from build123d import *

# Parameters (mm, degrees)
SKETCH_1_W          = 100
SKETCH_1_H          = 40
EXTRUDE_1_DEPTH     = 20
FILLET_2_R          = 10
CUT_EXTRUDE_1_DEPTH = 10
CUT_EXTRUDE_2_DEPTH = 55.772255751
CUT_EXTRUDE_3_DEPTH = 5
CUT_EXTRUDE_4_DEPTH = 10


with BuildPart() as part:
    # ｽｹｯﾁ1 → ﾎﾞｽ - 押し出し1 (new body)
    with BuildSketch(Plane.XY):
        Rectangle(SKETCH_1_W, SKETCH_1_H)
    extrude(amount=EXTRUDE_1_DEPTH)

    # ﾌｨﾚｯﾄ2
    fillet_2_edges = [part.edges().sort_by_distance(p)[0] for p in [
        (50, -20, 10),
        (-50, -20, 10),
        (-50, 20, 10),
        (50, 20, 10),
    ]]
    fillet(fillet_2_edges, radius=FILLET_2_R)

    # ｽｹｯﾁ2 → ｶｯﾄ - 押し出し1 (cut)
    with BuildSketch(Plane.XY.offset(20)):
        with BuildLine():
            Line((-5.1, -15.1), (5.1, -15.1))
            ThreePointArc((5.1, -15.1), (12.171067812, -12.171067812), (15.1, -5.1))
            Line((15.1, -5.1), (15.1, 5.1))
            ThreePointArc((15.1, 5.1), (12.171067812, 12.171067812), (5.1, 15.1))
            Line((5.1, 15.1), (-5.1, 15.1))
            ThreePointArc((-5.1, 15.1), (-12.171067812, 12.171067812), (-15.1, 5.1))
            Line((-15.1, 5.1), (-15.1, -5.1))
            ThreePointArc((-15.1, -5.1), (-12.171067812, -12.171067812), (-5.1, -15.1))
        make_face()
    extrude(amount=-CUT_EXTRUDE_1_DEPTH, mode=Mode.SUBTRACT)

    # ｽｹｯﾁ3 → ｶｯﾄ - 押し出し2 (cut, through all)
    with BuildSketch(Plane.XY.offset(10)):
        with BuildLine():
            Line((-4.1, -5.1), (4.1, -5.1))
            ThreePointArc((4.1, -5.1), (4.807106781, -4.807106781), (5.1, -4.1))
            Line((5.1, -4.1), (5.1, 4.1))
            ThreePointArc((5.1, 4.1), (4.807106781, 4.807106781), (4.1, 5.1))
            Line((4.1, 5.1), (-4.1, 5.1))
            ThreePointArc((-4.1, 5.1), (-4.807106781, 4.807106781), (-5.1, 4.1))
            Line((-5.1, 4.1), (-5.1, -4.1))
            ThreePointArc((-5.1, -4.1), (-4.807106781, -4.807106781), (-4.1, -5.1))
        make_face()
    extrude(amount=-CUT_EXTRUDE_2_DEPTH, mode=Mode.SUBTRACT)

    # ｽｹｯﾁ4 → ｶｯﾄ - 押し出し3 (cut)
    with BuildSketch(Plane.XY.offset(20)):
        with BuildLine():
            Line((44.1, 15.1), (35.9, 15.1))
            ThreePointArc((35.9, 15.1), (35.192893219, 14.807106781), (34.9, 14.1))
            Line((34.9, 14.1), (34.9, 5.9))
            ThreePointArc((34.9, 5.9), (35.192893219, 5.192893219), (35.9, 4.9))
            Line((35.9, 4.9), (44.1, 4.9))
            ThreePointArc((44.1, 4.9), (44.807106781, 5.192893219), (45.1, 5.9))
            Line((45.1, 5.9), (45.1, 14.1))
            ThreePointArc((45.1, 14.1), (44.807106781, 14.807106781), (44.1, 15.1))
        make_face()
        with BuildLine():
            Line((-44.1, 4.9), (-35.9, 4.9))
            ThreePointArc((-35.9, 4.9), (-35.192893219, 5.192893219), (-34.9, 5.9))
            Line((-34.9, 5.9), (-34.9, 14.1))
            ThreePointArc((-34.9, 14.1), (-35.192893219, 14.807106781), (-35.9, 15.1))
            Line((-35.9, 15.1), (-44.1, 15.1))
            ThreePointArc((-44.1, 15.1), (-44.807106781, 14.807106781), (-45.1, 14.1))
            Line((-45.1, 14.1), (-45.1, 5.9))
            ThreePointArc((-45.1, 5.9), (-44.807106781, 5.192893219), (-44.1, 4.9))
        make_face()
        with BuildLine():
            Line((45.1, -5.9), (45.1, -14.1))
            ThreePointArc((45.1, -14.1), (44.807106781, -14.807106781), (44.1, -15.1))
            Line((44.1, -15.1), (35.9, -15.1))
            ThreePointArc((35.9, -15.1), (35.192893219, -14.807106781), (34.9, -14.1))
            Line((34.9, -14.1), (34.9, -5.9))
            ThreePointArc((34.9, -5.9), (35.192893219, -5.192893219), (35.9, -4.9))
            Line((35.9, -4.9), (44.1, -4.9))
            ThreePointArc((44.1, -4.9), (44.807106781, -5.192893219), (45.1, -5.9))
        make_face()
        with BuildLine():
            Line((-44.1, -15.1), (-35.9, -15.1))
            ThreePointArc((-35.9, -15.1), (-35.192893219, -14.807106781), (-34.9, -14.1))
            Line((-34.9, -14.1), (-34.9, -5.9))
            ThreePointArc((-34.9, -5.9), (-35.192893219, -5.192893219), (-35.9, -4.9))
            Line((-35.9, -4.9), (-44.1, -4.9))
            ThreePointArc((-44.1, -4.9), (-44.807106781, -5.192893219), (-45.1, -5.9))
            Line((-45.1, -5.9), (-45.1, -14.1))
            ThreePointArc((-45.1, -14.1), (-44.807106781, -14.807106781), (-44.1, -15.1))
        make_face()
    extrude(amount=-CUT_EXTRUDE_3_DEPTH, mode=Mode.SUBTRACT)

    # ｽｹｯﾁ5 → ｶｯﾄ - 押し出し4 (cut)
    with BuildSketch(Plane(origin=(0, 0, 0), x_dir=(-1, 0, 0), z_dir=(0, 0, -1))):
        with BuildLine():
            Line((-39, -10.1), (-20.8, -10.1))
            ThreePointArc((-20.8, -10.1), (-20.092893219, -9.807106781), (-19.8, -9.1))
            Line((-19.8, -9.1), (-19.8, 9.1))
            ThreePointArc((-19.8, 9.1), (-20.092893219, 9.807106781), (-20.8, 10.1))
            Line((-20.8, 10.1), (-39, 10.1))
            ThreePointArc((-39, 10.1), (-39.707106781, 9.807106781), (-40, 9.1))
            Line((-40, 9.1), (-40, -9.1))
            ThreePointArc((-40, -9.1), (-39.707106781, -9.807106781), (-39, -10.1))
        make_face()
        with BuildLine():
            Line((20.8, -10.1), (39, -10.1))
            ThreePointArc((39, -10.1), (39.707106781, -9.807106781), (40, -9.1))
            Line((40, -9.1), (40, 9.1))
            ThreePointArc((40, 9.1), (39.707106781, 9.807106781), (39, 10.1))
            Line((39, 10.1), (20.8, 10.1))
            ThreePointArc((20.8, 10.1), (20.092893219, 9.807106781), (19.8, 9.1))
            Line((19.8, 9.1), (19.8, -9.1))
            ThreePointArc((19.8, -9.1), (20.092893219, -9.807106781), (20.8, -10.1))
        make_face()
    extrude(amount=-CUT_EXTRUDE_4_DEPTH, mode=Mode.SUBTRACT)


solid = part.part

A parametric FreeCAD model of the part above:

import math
import FreeCAD as App
import Part
import Sketcher
Q = App.Units.Quantity


def edges_at(feature, points):
    """Names of the edges that pass closest to the given points."""
    edges = feature.Shape.Edges
    near = lambda p: min(range(len(edges)), key=lambda i: edges[i].distToShape(Part.Vertex(*p))[0])
    return sorted({f"Edge{near(p) + 1}" for p in points})


def add_polygon(sketch, points):
    """Adds a closed chain of lines whose ends are joined by coincident constraints."""
    first, n = sketch.GeometryCount, len(points)
    for a, b in zip(points, points[1:] + points[:1]):
        sketch.addGeometry(Part.LineSegment(App.Vector(*a, 0), App.Vector(*b, 0)), False)
    for i in range(n):
        sketch.addConstraint(Sketcher.Constraint("Coincident", first + i, 2, first + (i + 1) % n, 1))

doc = App.newDocument("Part")
body = doc.addObject("PartDesign::Body", "Body")

# Sketch on XY plane
sketch1 = body.newObject("Sketcher::SketchObject", "Sketch")
sketch1.AttachmentSupport = (doc.getObject("XY_Plane"), [""])
sketch1.MapMode = "FlatFace"
add_polygon(sketch1, [(-50, 20), (-50, -20), (50, -20), (50, 20)])  # lines 0-3
sketch1.addConstraint(Sketcher.Constraint("Vertical", 0))
sketch1.addConstraint(Sketcher.Constraint("Horizontal", 1))
sketch1.addConstraint(Sketcher.Constraint("Vertical", 2))
sketch1.addConstraint(Sketcher.Constraint("Horizontal", 3))
sketch1.addConstraint(Sketcher.Constraint("Symmetric", 0, 2, 2, 2, -1, 1))
sketch1.addConstraint(Sketcher.Constraint("DistanceX", 1, 1, 1, 2, Q("100 mm")))
sketch1.addConstraint(Sketcher.Constraint("DistanceY", 0, 2, 0, 1, Q("40 mm")))
pad1 = body.newObject("PartDesign::Pad", "Pad")
pad1.Profile = sketch1
pad1.Length = 20
doc.recompute()

fillet = body.newObject("PartDesign::Fillet", "Fillet")
fillet.Base = (pad1, edges_at(pad1, [
    (50, -20, 10),
    (-50, -20, 10),
    (-50, 20, 10),
    (50, 20, 10),
]))
fillet.Radius = 10

# Sketch on XY plane
sketch2 = body.newObject("Sketcher::SketchObject", "Sketch001")
sketch2.AttachmentSupport = (doc.getObject("XY_Plane"), [""])
sketch2.MapMode = "FlatFace"
sketch2.AttachmentOffset = App.Placement(App.Vector(0, 0, 20), App.Rotation())
sketch2.addGeometry(Part.LineSegment(App.Vector(-5, -15, 0), App.Vector(5, -15, 0)), False)
sketch2.addGeometry(Part.ArcOfCircle(Part.Circle(App.Vector(5, -5, 0), App.Vector(0, 0, 1), 10), math.radians(-90), math.radians(0)), False)
sketch2.addGeometry(Part.LineSegment(App.Vector(15, -5, 0), App.Vector(15, 5, 0)), False)
sketch2.addGeometry(Part.ArcOfCircle(Part.Circle(App.Vector(5, 5, 0), App.Vector(0, 0, 1), 10), math.radians(0), math.radians(90)), False)
sketch2.addGeometry(Part.LineSegment(App.Vector(5, 15, 0), App.Vector(-5, 15, 0)), False)
sketch2.addGeometry(Part.ArcOfCircle(Part.Circle(App.Vector(-5, 5, 0), App.Vector(0, 0, 1), 10), math.radians(90), math.radians(180)), False)
sketch2.addGeometry(Part.LineSegment(App.Vector(-15, 5, 0), App.Vector(-15, -5, 0)), False)
sketch2.addGeometry(Part.ArcOfCircle(Part.Circle(App.Vector(-5, -5, 0), App.Vector(0, 0, 1), 10), math.radians(180), math.radians(270)), False)
sketch2.addConstraint(Sketcher.Constraint("Tangent", 0, 2, 1, 1))
sketch2.addConstraint(Sketcher.Constraint("Tangent", 1, 2, 2, 1))
sketch2.addConstraint(Sketcher.Constraint("Tangent", 2, 2, 3, 1))
sketch2.addConstraint(Sketcher.Constraint("Tangent", 3, 2, 4, 1))
sketch2.addConstraint(Sketcher.Constraint("Tangent", 4, 2, 5, 1))
sketch2.addConstraint(Sketcher.Constraint("Tangent", 5, 2, 6, 1))
sketch2.addConstraint(Sketcher.Constraint("Tangent", 6, 2, 7, 1))
sketch2.addConstraint(Sketcher.Constraint("Tangent", 7, 2, 0, 1))
sketch2.addConstraint(Sketcher.Constraint("Horizontal", 0))
sketch2.addConstraint(Sketcher.Constraint("Vertical", 2))
sketch2.addConstraint(Sketcher.Constraint("Horizontal", 4))
sketch2.addConstraint(Sketcher.Constraint("Vertical", 6))
sketch2.addConstraint(Sketcher.Constraint("Equal", 1, 3))
sketch2.addConstraint(Sketcher.Constraint("Equal", 3, 5))
sketch2.addConstraint(Sketcher.Constraint("Equal", 5, 7))
sketch2.addConstraint(Sketcher.Constraint("Symmetric", 1, 3, 5, 3, -1, 1))
sketch2.addConstraint(Sketcher.Constraint("Equal", 4, 2))
sketch2.addConstraint(Sketcher.Constraint("Radius", 1, Q("10 mm")))
sketch2.addConstraint(Sketcher.Constraint("DistanceX", 0, 1, 0, 2, Q("10.2 mm")))
pocket1 = body.newObject("PartDesign::Pocket", "Pocket")
pocket1.Profile = sketch2
pocket1.Length = 10

# Sketch on XY plane
sketch3 = body.newObject("Sketcher::SketchObject", "Sketch002")
sketch3.AttachmentSupport = (doc.getObject("XY_Plane"), [""])
sketch3.MapMode = "FlatFace"
sketch3.AttachmentOffset = App.Placement(App.Vector(0, 0, 10), App.Rotation())
sketch3.addGeometry(Part.LineSegment(App.Vector(-4.1, -5.1, 0), App.Vector(4.1, -5.1, 0)), False)
sketch3.addGeometry(Part.ArcOfCircle(Part.Circle(App.Vector(4.1, -4.1, 0), App.Vector(0, 0, 1), 1), math.radians(-90), math.radians(0)), False)
sketch3.addGeometry(Part.LineSegment(App.Vector(5.1, -4.1, 0), App.Vector(5.1, 4.1, 0)), False)
sketch3.addGeometry(Part.ArcOfCircle(Part.Circle(App.Vector(4.1, 4.1, 0), App.Vector(0, 0, 1), 1), math.radians(0), math.radians(90)), False)
sketch3.addGeometry(Part.LineSegment(App.Vector(4.1, 5.1, 0), App.Vector(-4.1, 5.1, 0)), False)
sketch3.addGeometry(Part.ArcOfCircle(Part.Circle(App.Vector(-4.1, 4.1, 0), App.Vector(0, 0, 1), 1), math.radians(90), math.radians(180)), False)
sketch3.addGeometry(Part.LineSegment(App.Vector(-5.1, 4.1, 0), App.Vector(-5.1, -4.1, 0)), False)
sketch3.addGeometry(Part.ArcOfCircle(Part.Circle(App.Vector(-4.1, -4.1, 0), App.Vector(0, 0, 1), 1), math.radians(-180), math.radians(-90)), False)
sketch3.addConstraint(Sketcher.Constraint("Tangent", 0, 2, 1, 1))
sketch3.addConstraint(Sketcher.Constraint("Tangent", 1, 2, 2, 1))
sketch3.addConstraint(Sketcher.Constraint("Tangent", 2, 2, 3, 1))
sketch3.addConstraint(Sketcher.Constraint("Tangent", 3, 2, 4, 1))
sketch3.addConstraint(Sketcher.Constraint("Tangent", 4, 2, 5, 1))
sketch3.addConstraint(Sketcher.Constraint("Tangent", 5, 2, 6, 1))
sketch3.addConstraint(Sketcher.Constraint("Tangent", 6, 2, 7, 1))
sketch3.addConstraint(Sketcher.Constraint("Tangent", 7, 2, 0, 1))
sketch3.addConstraint(Sketcher.Constraint("Horizontal", 0))
sketch3.addConstraint(Sketcher.Constraint("Vertical", 2))
sketch3.addConstraint(Sketcher.Constraint("Horizontal", 4))
sketch3.addConstraint(Sketcher.Constraint("Vertical", 6))
sketch3.addConstraint(Sketcher.Constraint("Equal", 1, 3))
sketch3.addConstraint(Sketcher.Constraint("Equal", 3, 5))
sketch3.addConstraint(Sketcher.Constraint("Equal", 5, 7))
sketch3.addConstraint(Sketcher.Constraint("Symmetric", 1, 3, 5, 3, -1, 1))
sketch3.addConstraint(Sketcher.Constraint("Equal", 4, 2))
sketch3.addConstraint(Sketcher.Constraint("Radius", 1, Q("1 mm")))
sketch3.addConstraint(Sketcher.Constraint("DistanceX", 0, 1, 0, 2, Q("8.2 mm")))
pocket2 = body.newObject("PartDesign::Pocket", "Pocket001")
pocket2.Profile = sketch3
pocket2.Type = "ThroughAll"

# Sketch on XY plane
sketch4 = body.newObject("Sketcher::SketchObject", "Sketch003")
sketch4.AttachmentSupport = (doc.getObject("XY_Plane"), [""])
sketch4.MapMode = "FlatFace"
sketch4.AttachmentOffset = App.Placement(App.Vector(0, 0, 20), App.Rotation())
sketch4.addGeometry(Part.LineSegment(App.Vector(44.1, 15.1, 0), App.Vector(35.9, 15.1, 0)), False)
sketch4.addGeometry(Part.ArcOfCircle(Part.Circle(App.Vector(35.9, 14.1, 0), App.Vector(0, 0, 1), 1), math.radians(90), math.radians(180)), False)
sketch4.addGeometry(Part.LineSegment(App.Vector(34.9, 14.1, 0), App.Vector(34.9, 5.9, 0)), False)
sketch4.addGeometry(Part.ArcOfCircle(Part.Circle(App.Vector(35.9, 5.9, 0), App.Vector(0, 0, 1), 1), math.radians(-180), math.radians(-90)), False)
sketch4.addGeometry(Part.LineSegment(App.Vector(35.9, 4.9, 0), App.Vector(44.1, 4.9, 0)), False)
sketch4.addGeometry(Part.ArcOfCircle(Part.Circle(App.Vector(44.1, 5.9, 0), App.Vector(0, 0, 1), 1), math.radians(-90), math.radians(0)), False)
sketch4.addGeometry(Part.LineSegment(App.Vector(45.1, 5.9, 0), App.Vector(45.1, 14.1, 0)), False)
sketch4.addGeometry(Part.ArcOfCircle(Part.Circle(App.Vector(44.1, 14.1, 0), App.Vector(0, 0, 1), 1), math.radians(0), math.radians(90)), False)
sketch4.addGeometry(Part.LineSegment(App.Vector(-44.1, 4.9, 0), App.Vector(-35.9, 4.9, 0)), False)
sketch4.addGeometry(Part.ArcOfCircle(Part.Circle(App.Vector(-35.9, 5.9, 0), App.Vector(0, 0, 1), 1), math.radians(-90), math.radians(0)), False)
sketch4.addGeometry(Part.LineSegment(App.Vector(-34.9, 5.9, 0), App.Vector(-34.9, 14.1, 0)), False)
sketch4.addGeometry(Part.ArcOfCircle(Part.Circle(App.Vector(-35.9, 14.1, 0), App.Vector(0, 0, 1), 1), math.radians(0), math.radians(90)), False)
sketch4.addGeometry(Part.LineSegment(App.Vector(-35.9, 15.1, 0), App.Vector(-44.1, 15.1, 0)), False)
sketch4.addGeometry(Part.ArcOfCircle(Part.Circle(App.Vector(-44.1, 14.1, 0), App.Vector(0, 0, 1), 1), math.radians(90), math.radians(180)), False)
sketch4.addGeometry(Part.LineSegment(App.Vector(-45.1, 14.1, 0), App.Vector(-45.1, 5.9, 0)), False)
sketch4.addGeometry(Part.ArcOfCircle(Part.Circle(App.Vector(-44.1, 5.9, 0), App.Vector(0, 0, 1), 1), math.radians(-180), math.radians(-90)), False)
sketch4.addGeometry(Part.LineSegment(App.Vector(45.1, -14.1, 0), App.Vector(45.1, -5.9, 0)), False)
sketch4.addGeometry(Part.ArcOfCircle(Part.Circle(App.Vector(44.1, -5.9, 0), App.Vector(0, 0, 1), 1), math.radians(0), math.radians(90)), False)
sketch4.addGeometry(Part.LineSegment(App.Vector(44.1, -4.9, 0), App.Vector(35.9, -4.9, 0)), False)
sketch4.addGeometry(Part.ArcOfCircle(Part.Circle(App.Vector(35.9, -5.9, 0), App.Vector(0, 0, 1), 1), math.radians(90), math.radians(180)), False)
sketch4.addGeometry(Part.LineSegment(App.Vector(34.9, -5.9, 0), App.Vector(34.9, -14.1, 0)), False)
sketch4.addGeometry(Part.ArcOfCircle(Part.Circle(App.Vector(35.9, -14.1, 0), App.Vector(0, 0, 1), 1), math.radians(-180), math.radians(-90)), False)
sketch4.addGeometry(Part.LineSegment(App.Vector(35.9, -15.1, 0), App.Vector(44.1, -15.1, 0)), False)
sketch4.addGeometry(Part.ArcOfCircle(Part.Circle(App.Vector(44.1, -14.1, 0), App.Vector(0, 0, 1), 1), math.radians(-90), math.radians(0)), False)
sketch4.addGeometry(Part.LineSegment(App.Vector(-44.1, -15.1, 0), App.Vector(-35.9, -15.1, 0)), False)
sketch4.addGeometry(Part.ArcOfCircle(Part.Circle(App.Vector(-35.9, -14.1, 0), App.Vector(0, 0, 1), 1), math.radians(-90), math.radians(0)), False)
sketch4.addGeometry(Part.LineSegment(App.Vector(-34.9, -14.1, 0), App.Vector(-34.9, -5.9, 0)), False)
sketch4.addGeometry(Part.ArcOfCircle(Part.Circle(App.Vector(-35.9, -5.9, 0), App.Vector(0, 0, 1), 1), math.radians(0), math.radians(90)), False)
sketch4.addGeometry(Part.LineSegment(App.Vector(-35.9, -4.9, 0), App.Vector(-44.1, -4.9, 0)), False)
sketch4.addGeometry(Part.ArcOfCircle(Part.Circle(App.Vector(-44.1, -5.9, 0), App.Vector(0, 0, 1), 1), math.radians(90), math.radians(180)), False)
sketch4.addGeometry(Part.LineSegment(App.Vector(-45.1, -5.9, 0), App.Vector(-45.1, -14.1, 0)), False)
sketch4.addGeometry(Part.ArcOfCircle(Part.Circle(App.Vector(-44.1, -14.1, 0), App.Vector(0, 0, 1), 1), math.radians(-180), math.radians(-90)), False)
sketch4.addConstraint(Sketcher.Constraint("Tangent", 0, 2, 1, 1))
sketch4.addConstraint(Sketcher.Constraint("Tangent", 1, 2, 2, 1))
sketch4.addConstraint(Sketcher.Constraint("Tangent", 2, 2, 3, 1))
sketch4.addConstraint(Sketcher.Constraint("Tangent", 3, 2, 4, 1))
sketch4.addConstraint(Sketcher.Constraint("Tangent", 4, 2, 5, 1))
sketch4.addConstraint(Sketcher.Constraint("Tangent", 5, 2, 6, 1))
sketch4.addConstraint(Sketcher.Constraint("Tangent", 6, 2, 7, 1))
sketch4.addConstraint(Sketcher.Constraint("Tangent", 7, 2, 0, 1))
sketch4.addConstraint(Sketcher.Constraint("Tangent", 8, 2, 9, 1))
sketch4.addConstraint(Sketcher.Constraint("Tangent", 9, 2, 10, 1))
sketch4.addConstraint(Sketcher.Constraint("Tangent", 10, 2, 11, 1))
sketch4.addConstraint(Sketcher.Constraint("Tangent", 11, 2, 12, 1))
sketch4.addConstraint(Sketcher.Constraint("Tangent", 12, 2, 13, 1))
sketch4.addConstraint(Sketcher.Constraint("Tangent", 13, 2, 14, 1))
sketch4.addConstraint(Sketcher.Constraint("Tangent", 14, 2, 15, 1))
sketch4.addConstraint(Sketcher.Constraint("Tangent", 15, 2, 8, 1))
sketch4.addConstraint(Sketcher.Constraint("Tangent", 16, 2, 17, 1))
sketch4.addConstraint(Sketcher.Constraint("Tangent", 17, 2, 18, 1))
sketch4.addConstraint(Sketcher.Constraint("Tangent", 18, 2, 19, 1))
sketch4.addConstraint(Sketcher.Constraint("Tangent", 19, 2, 20, 1))
sketch4.addConstraint(Sketcher.Constraint("Tangent", 20, 2, 21, 1))
sketch4.addConstraint(Sketcher.Constraint("Tangent", 21, 2, 22, 1))
sketch4.addConstraint(Sketcher.Constraint("Tangent", 22, 2, 23, 1))
sketch4.addConstraint(Sketcher.Constraint("Tangent", 23, 2, 16, 1))
sketch4.addConstraint(Sketcher.Constraint("Tangent", 24, 2, 25, 1))
sketch4.addConstraint(Sketcher.Constraint("Tangent", 25, 2, 26, 1))
sketch4.addConstraint(Sketcher.Constraint("Tangent", 26, 2, 27, 1))
sketch4.addConstraint(Sketcher.Constraint("Tangent", 27, 2, 28, 1))
sketch4.addConstraint(Sketcher.Constraint("Tangent", 28, 2, 29, 1))
sketch4.addConstraint(Sketcher.Constraint("Tangent", 29, 2, 30, 1))
sketch4.addConstraint(Sketcher.Constraint("Tangent", 30, 2, 31, 1))
sketch4.addConstraint(Sketcher.Constraint("Tangent", 31, 2, 24, 1))
sketch4.addConstraint(Sketcher.Constraint("Horizontal", 0))
sketch4.addConstraint(Sketcher.Constraint("Vertical", 2))
sketch4.addConstraint(Sketcher.Constraint("Horizontal", 4))
sketch4.addConstraint(Sketcher.Constraint("Vertical", 6))
sketch4.addConstraint(Sketcher.Constraint("Horizontal", 8))
sketch4.addConstraint(Sketcher.Constraint("Vertical", 10))
sketch4.addConstraint(Sketcher.Constraint("Horizontal", 12))
sketch4.addConstraint(Sketcher.Constraint("Vertical", 14))
sketch4.addConstraint(Sketcher.Constraint("Vertical", 16))
sketch4.addConstraint(Sketcher.Constraint("Horizontal", 18))
sketch4.addConstraint(Sketcher.Constraint("Vertical", 20))
sketch4.addConstraint(Sketcher.Constraint("Horizontal", 22))
sketch4.addConstraint(Sketcher.Constraint("Horizontal", 24))
sketch4.addConstraint(Sketcher.Constraint("Vertical", 26))
sketch4.addConstraint(Sketcher.Constraint("Horizontal", 28))
sketch4.addConstraint(Sketcher.Constraint("Vertical", 30))
sketch4.addConstraint(Sketcher.Constraint("Equal", 1, 3))
sketch4.addConstraint(Sketcher.Constraint("Equal", 3, 5))
sketch4.addConstraint(Sketcher.Constraint("Equal", 5, 7))
sketch4.addConstraint(Sketcher.Constraint("Equal", 7, 9))
sketch4.addConstraint(Sketcher.Constraint("Equal", 9, 11))
sketch4.addConstraint(Sketcher.Constraint("Equal", 11, 13))
sketch4.addConstraint(Sketcher.Constraint("Equal", 13, 15))
sketch4.addConstraint(Sketcher.Constraint("Equal", 15, 17))
sketch4.addConstraint(Sketcher.Constraint("Equal", 17, 19))
sketch4.addConstraint(Sketcher.Constraint("Equal", 19, 21))
sketch4.addConstraint(Sketcher.Constraint("Equal", 21, 23))
sketch4.addConstraint(Sketcher.Constraint("Equal", 23, 25))
sketch4.addConstraint(Sketcher.Constraint("Equal", 25, 27))
sketch4.addConstraint(Sketcher.Constraint("Equal", 27, 29))
sketch4.addConstraint(Sketcher.Constraint("Equal", 29, 31))
sketch4.addConstraint(Sketcher.Constraint("Symmetric", 15, 3, 17, 3, -1, 1))
sketch4.addConstraint(Sketcher.Constraint("Symmetric", 11, 3, 21, 3, -1, 1))
sketch4.addConstraint(Sketcher.Constraint("Symmetric", 1, 3, 25, 3, -1, 1))
sketch4.addConstraint(Sketcher.Constraint("Symmetric", 5, 3, 29, 3, -1, 1))
sketch4.addConstraint(Sketcher.Constraint("Symmetric", 3, 3, 9, 3, -2))
sketch4.addConstraint(Sketcher.Constraint("Symmetric", 7, 3, 13, 3, -2))
sketch4.addConstraint(Sketcher.Constraint("Equal", 28, 2))
sketch4.addConstraint(Sketcher.Constraint("Radius", 1, Q("1 mm")))
sketch4.addConstraint(Sketcher.Constraint("DistanceX", 0, 2, 0, 1, Q("8.2 mm")))
sketch4.addConstraint(Sketcher.Constraint("DistanceX", 9, 3, 5, 3, Q("80 mm")))
sketch4.addConstraint(Sketcher.Constraint("DistanceY", 17, 3, 7, 3, Q("20 mm")))
pocket3 = body.newObject("PartDesign::Pocket", "Pocket002")
pocket3.Profile = sketch4
pocket3.Length = 5

# Sketch on XY plane
sketch5 = body.newObject("Sketcher::SketchObject", "Sketch004")
sketch5.AttachmentSupport = (doc.getObject("XY_Plane"), [""])
sketch5.MapMode = "FlatFace"
sketch5.addGeometry(Part.LineSegment(App.Vector(39, -10.1, 0), App.Vector(20.8, -10.1, 0)), False)
sketch5.addGeometry(Part.ArcOfCircle(Part.Circle(App.Vector(20.8, -9.1, 0), App.Vector(0, 0, 1), 1), math.radians(-180), math.radians(-90)), False)
sketch5.addGeometry(Part.LineSegment(App.Vector(19.8, -9.1, 0), App.Vector(19.8, 9.1, 0)), False)
sketch5.addGeometry(Part.ArcOfCircle(Part.Circle(App.Vector(20.8, 9.1, 0), App.Vector(0, 0, 1), 1), math.radians(90), math.radians(180)), False)
sketch5.addGeometry(Part.LineSegment(App.Vector(20.8, 10.1, 0), App.Vector(39, 10.1, 0)), False)
sketch5.addGeometry(Part.ArcOfCircle(Part.Circle(App.Vector(39, 9.1, 0), App.Vector(0, 0, 1), 1), math.radians(0), math.radians(90)), False)
sketch5.addGeometry(Part.LineSegment(App.Vector(40, 9.1, 0), App.Vector(40, -9.1, 0)), False)
sketch5.addGeometry(Part.ArcOfCircle(Part.Circle(App.Vector(39, -9.1, 0), App.Vector(0, 0, 1), 1), math.radians(-90), math.radians(0)), False)
sketch5.addGeometry(Part.LineSegment(App.Vector(-20.8, -10.1, 0), App.Vector(-39, -10.1, 0)), False)
sketch5.addGeometry(Part.ArcOfCircle(Part.Circle(App.Vector(-39, -9.1, 0), App.Vector(0, 0, 1), 1), math.radians(-180), math.radians(-90)), False)
sketch5.addGeometry(Part.LineSegment(App.Vector(-40, -9.1, 0), App.Vector(-40, 9.1, 0)), False)
sketch5.addGeometry(Part.ArcOfCircle(Part.Circle(App.Vector(-39, 9.1, 0), App.Vector(0, 0, 1), 1), math.radians(90), math.radians(180)), False)
sketch5.addGeometry(Part.LineSegment(App.Vector(-39, 10.1, 0), App.Vector(-20.8, 10.1, 0)), False)
sketch5.addGeometry(Part.ArcOfCircle(Part.Circle(App.Vector(-20.8, 9.1, 0), App.Vector(0, 0, 1), 1), math.radians(0), math.radians(90)), False)
sketch5.addGeometry(Part.LineSegment(App.Vector(-19.8, 9.1, 0), App.Vector(-19.8, -9.1, 0)), False)
sketch5.addGeometry(Part.ArcOfCircle(Part.Circle(App.Vector(-20.8, -9.1, 0), App.Vector(0, 0, 1), 1), math.radians(-90), math.radians(0)), False)
sketch5.addConstraint(Sketcher.Constraint("Tangent", 0, 2, 1, 2))
sketch5.addConstraint(Sketcher.Constraint("Tangent", 1, 1, 2, 1))
sketch5.addConstraint(Sketcher.Constraint("Tangent", 2, 2, 3, 2))
sketch5.addConstraint(Sketcher.Constraint("Tangent", 3, 1, 4, 1))
sketch5.addConstraint(Sketcher.Constraint("Tangent", 4, 2, 5, 2))
sketch5.addConstraint(Sketcher.Constraint("Tangent", 5, 1, 6, 1))
sketch5.addConstraint(Sketcher.Constraint("Tangent", 6, 2, 7, 2))
sketch5.addConstraint(Sketcher.Constraint("Tangent", 7, 1, 0, 1))
sketch5.addConstraint(Sketcher.Constraint("Tangent", 8, 2, 9, 2))
sketch5.addConstraint(Sketcher.Constraint("Tangent", 9, 1, 10, 1))
sketch5.addConstraint(Sketcher.Constraint("Tangent", 10, 2, 11, 2))
sketch5.addConstraint(Sketcher.Constraint("Tangent", 11, 1, 12, 1))
sketch5.addConstraint(Sketcher.Constraint("Tangent", 12, 2, 13, 2))
sketch5.addConstraint(Sketcher.Constraint("Tangent", 13, 1, 14, 1))
sketch5.addConstraint(Sketcher.Constraint("Tangent", 14, 2, 15, 2))
sketch5.addConstraint(Sketcher.Constraint("Tangent", 15, 1, 8, 1))
sketch5.addConstraint(Sketcher.Constraint("Horizontal", 0))
sketch5.addConstraint(Sketcher.Constraint("Vertical", 2))
sketch5.addConstraint(Sketcher.Constraint("Horizontal", 4))
sketch5.addConstraint(Sketcher.Constraint("Vertical", 6))
sketch5.addConstraint(Sketcher.Constraint("Horizontal", 8))
sketch5.addConstraint(Sketcher.Constraint("Vertical", 10))
sketch5.addConstraint(Sketcher.Constraint("Horizontal", 12))
sketch5.addConstraint(Sketcher.Constraint("Vertical", 14))
sketch5.addConstraint(Sketcher.Constraint("Equal", 1, 3))
sketch5.addConstraint(Sketcher.Constraint("Equal", 3, 5))
sketch5.addConstraint(Sketcher.Constraint("Equal", 5, 7))
sketch5.addConstraint(Sketcher.Constraint("Equal", 7, 9))
sketch5.addConstraint(Sketcher.Constraint("Equal", 9, 11))
sketch5.addConstraint(Sketcher.Constraint("Equal", 11, 13))
sketch5.addConstraint(Sketcher.Constraint("Equal", 13, 15))
sketch5.addConstraint(Sketcher.Constraint("Symmetric", 5, 3, 9, 3, -1, 1))
sketch5.addConstraint(Sketcher.Constraint("Symmetric", 1, 3, 13, 3, -1, 1))
sketch5.addConstraint(Sketcher.Constraint("Horizontal", 7, 3, 9, 3))
sketch5.addConstraint(Sketcher.Constraint("Equal", 12, 2))
sketch5.addConstraint(Sketcher.Constraint("Radius", 1, Q("1 mm")))
sketch5.addConstraint(Sketcher.Constraint("DistanceX", 0, 2, 0, 1, Q("18.2 mm")))
sketch5.addConstraint(Sketcher.Constraint("DistanceX", -1, 1, 5, 3, Q("39 mm")))
pocket4 = body.newObject("PartDesign::Pocket", "Pocket003")
pocket4.Profile = sketch5
pocket4.Length = 10
pocket4.Reversed = True

doc.recompute()
